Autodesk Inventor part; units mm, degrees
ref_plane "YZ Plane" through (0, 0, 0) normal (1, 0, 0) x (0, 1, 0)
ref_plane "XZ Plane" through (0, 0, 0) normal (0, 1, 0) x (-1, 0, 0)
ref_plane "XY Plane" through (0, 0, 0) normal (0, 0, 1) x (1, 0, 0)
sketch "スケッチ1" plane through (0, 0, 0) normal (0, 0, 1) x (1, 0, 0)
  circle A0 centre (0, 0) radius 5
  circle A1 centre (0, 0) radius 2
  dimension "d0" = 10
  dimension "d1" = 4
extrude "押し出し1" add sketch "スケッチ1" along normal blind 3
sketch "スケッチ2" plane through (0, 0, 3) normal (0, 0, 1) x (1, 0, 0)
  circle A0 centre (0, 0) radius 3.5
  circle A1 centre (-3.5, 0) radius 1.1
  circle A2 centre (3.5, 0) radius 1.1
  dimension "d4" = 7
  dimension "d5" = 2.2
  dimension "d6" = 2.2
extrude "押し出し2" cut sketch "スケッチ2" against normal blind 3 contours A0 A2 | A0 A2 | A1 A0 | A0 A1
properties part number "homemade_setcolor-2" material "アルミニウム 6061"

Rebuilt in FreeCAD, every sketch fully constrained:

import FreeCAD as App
import Part
import Sketcher
Q = App.Units.Quantity

doc = App.newDocument("Part")
body = doc.addObject("PartDesign::Body", "Body")

# Sketch on XY plane
sketch1 = body.newObject("Sketcher::SketchObject", "Sketch")
sketch1.AttachmentSupport = (doc.getObject("XY_Plane"), [""])
sketch1.MapMode = "FlatFace"
sketch1.addGeometry([
    Part.Circle(App.Vector(0, 0, 0), App.Vector(0, 0, 1), 5),
    Part.Circle(App.Vector(0, 0, 0), App.Vector(0, 0, 1), 2),
], False)
sketch1.addConstraint([
    Sketcher.Constraint("Coincident", 0, 3, -1, 1),
    Sketcher.Constraint("Coincident", 1, 3, -1, 1),
    Sketcher.Constraint("Diameter", 0, Q("10 mm")),
    Sketcher.Constraint("Diameter", 1, Q("4 mm")),
])
pad1 = body.newObject("PartDesign::Pad", "Pad")
pad1.Profile = sketch1
pad1.Length = 3

# Sketch on XY plane
sketch2 = body.newObject("Sketcher::SketchObject", "Sketch001")
sketch2.AttachmentSupport = (doc.getObject("XY_Plane"), [""])
sketch2.MapMode = "FlatFace"
sketch2.AttachmentOffset = App.Placement(App.Vector(0, 0, 3), App.Rotation())
sketch2.addGeometry([
    Part.Circle(App.Vector(3.5, 0, 0), App.Vector(0, 0, 1), 1.1),
    Part.Circle(App.Vector(-3.5, 0, 0), App.Vector(0, 0, 1), 1.1),
], False)
sketch2.addConstraint([
    Sketcher.Constraint("Equal", 0, 1),
    Sketcher.Constraint("Symmetric", 0, 3, 1, 3, -1, 1),
    Sketcher.Constraint("PointOnObject", 0, 3, -1),
    Sketcher.Constraint("Diameter", 0, Q("2.2 mm")),
    Sketcher.Constraint("DistanceX", 1, 3, 0, 3, Q("7 mm")),
])
pocket1 = body.newObject("PartDesign::Pocket", "Pocket")
pocket1.Profile = sketch2
pocket1.Length = 3

doc.recompute()
